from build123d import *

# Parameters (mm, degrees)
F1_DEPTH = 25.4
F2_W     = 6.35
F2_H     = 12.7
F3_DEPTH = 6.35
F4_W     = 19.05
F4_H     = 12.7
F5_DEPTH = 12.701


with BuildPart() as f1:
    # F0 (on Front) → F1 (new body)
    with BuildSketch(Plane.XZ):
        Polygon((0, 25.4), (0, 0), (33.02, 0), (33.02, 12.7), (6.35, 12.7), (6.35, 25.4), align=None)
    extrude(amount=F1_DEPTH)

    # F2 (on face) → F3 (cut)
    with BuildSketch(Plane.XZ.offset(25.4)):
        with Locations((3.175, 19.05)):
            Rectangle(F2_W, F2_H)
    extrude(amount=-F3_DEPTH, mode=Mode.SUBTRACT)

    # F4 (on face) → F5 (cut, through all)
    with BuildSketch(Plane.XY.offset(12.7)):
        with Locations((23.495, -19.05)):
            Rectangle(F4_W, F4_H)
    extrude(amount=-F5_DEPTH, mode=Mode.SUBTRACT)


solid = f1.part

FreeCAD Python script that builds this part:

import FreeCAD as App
import Part
import Sketcher
from FreeCAD import Vector
Q = App.Units.Quantity

doc = App.newDocument("Part")
body = doc.addObject("PartDesign::Body", "Body")

sketch1 = doc.addObject("Sketcher::SketchObject", "Sketch")
body.addObject(sketch1)
sketch1.AttachmentSupport = (doc.XZ_Plane, [""])
sketch1.MapMode = "FlatFace"
sketch1.addGeometry([
    Part.LineSegment(Vector(0, 25, 0), Vector(0, 0, 0)),
    Part.LineSegment(Vector(0, 0, 0), Vector(33, 0, 0)),
    Part.LineSegment(Vector(33, 0, 0), Vector(33, 13, 0)),
    Part.LineSegment(Vector(33, 13, 0), Vector(6, 13, 0)),
    Part.LineSegment(Vector(6, 13, 0), Vector(6, 25, 0)),
    Part.LineSegment(Vector(6, 25, 0), Vector(0, 25, 0)),
], False)
sketch1.addConstraint([
    Sketcher.Constraint("Coincident", 0, 2, 1, 1),
    Sketcher.Constraint("Coincident", 1, 2, 2, 1),
    Sketcher.Constraint("Coincident", 2, 2, 3, 1),
    Sketcher.Constraint("Coincident", 3, 2, 4, 1),
    Sketcher.Constraint("Coincident", 4, 2, 5, 1),
    Sketcher.Constraint("Coincident", 5, 2, 0, 1),
    Sketcher.Constraint("Vertical", 0),
    Sketcher.Constraint("Horizontal", 1),
    Sketcher.Constraint("Vertical", 2),
    Sketcher.Constraint("Horizontal", 3),
    Sketcher.Constraint("Vertical", 4),
    Sketcher.Constraint("Horizontal", 5),
    Sketcher.Constraint("Coincident", 0, 2, -1, 1),
    Sketcher.Constraint("Equal", 2, 4),
    Sketcher.Constraint("DistanceY", 0, 2, 0, 1, Q("1 in")),
    Sketcher.Constraint("DistanceX", 1, 1, 1, 2, Q("1.3 in")),
    Sketcher.Constraint("DistanceX", 3, 2, 3, 1, Q("1.05 in")),
])
pad1 = doc.addObject("PartDesign::Pad", "Pad")
body.addObject(pad1)
pad1.Profile = sketch1
pad1.Length = Q("1 in")

sketch2 = doc.addObject("Sketcher::SketchObject", "Sketch001")
body.addObject(sketch2)
sketch2.AttachmentSupport = (doc.XZ_Plane, [""])
sketch2.MapMode = "FlatFace"
sketch2.AttachmentOffset = App.Placement(Vector(0, 0, 1 * 25.4), App.Rotation())
sketch2.addGeometry([
    Part.LineSegment(Vector(0, 25, 0), Vector(0, 13, 0)),
    Part.LineSegment(Vector(0, 13, 0), Vector(6, 13, 0)),
    Part.LineSegment(Vector(6, 13, 0), Vector(6, 25, 0)),
    Part.LineSegment(Vector(6, 25, 0), Vector(0, 25, 0)),
], False)
sketch2.addConstraint([
    Sketcher.Constraint("Coincident", 0, 2, 1, 1),
    Sketcher.Constraint("Coincident", 1, 2, 2, 1),
    Sketcher.Constraint("Coincident", 2, 2, 3, 1),
    Sketcher.Constraint("Coincident", 3, 2, 0, 1),
    Sketcher.Constraint("Vertical", 0),
    Sketcher.Constraint("Horizontal", 1),
    Sketcher.Constraint("Vertical", 2),
    Sketcher.Constraint("Horizontal", 3),
    Sketcher.Constraint("PointOnObject", 0, 2, -2),
    Sketcher.Constraint("DistanceY", 0, 2, 0, 1, Q("0.5 in")),
    Sketcher.Constraint("DistanceY", -1, 1, 2, 2, Q("1 in")),
    Sketcher.Constraint("DistanceX", 1, 1, 1, 2, Q("0.25 in")),
])
pocket1 = doc.addObject("PartDesign::Pocket", "Pocket")
body.addObject(pocket1)
pocket1.Profile = sketch2
pocket1.Length = Q("0.25 in")

sketch3 = doc.addObject("Sketcher::SketchObject", "Sketch002")
body.addObject(sketch3)
sketch3.AttachmentSupport = (doc.XY_Plane, [""])
sketch3.MapMode = "FlatFace"
sketch3.AttachmentOffset = App.Placement(Vector(0, 0, 0.5 * 25.4), App.Rotation())
sketch3.addGeometry([
    Part.LineSegment(Vector(14, -13, 0), Vector(14, -25, 0)),
    Part.LineSegment(Vector(14, -25, 0), Vector(33, -25, 0)),
    Part.LineSegment(Vector(33, -25, 0), Vector(33, -13, 0)),
    Part.LineSegment(Vector(33, -13, 0), Vector(14, -13, 0)),
], False)
sketch3.addConstraint([
    Sketcher.Constraint("Coincident", 0, 2, 1, 1),
    Sketcher.Constraint("Coincident", 1, 2, 2, 1),
    Sketcher.Constraint("Coincident", 2, 2, 3, 1),
    Sketcher.Constraint("Coincident", 3, 2, 0, 1),
    Sketcher.Constraint("Vertical", 0),
    Sketcher.Constraint("Horizontal", 1),
    Sketcher.Constraint("Vertical", 2),
    Sketcher.Constraint("Horizontal", 3),
    Sketcher.Constraint("DistanceY", 0, 2, 0, 1, Q("0.5 in")),
    Sketcher.Constraint("DistanceY", 0, 2, -1, 1, Q("1 in")),
    Sketcher.Constraint("DistanceX", 1, 1, 1, 2, Q("0.75 in")),
    Sketcher.Constraint("DistanceX", -1, 1, 1, 2, Q("1.3 in")),
])
pocket2 = doc.addObject("PartDesign::Pocket", "Pocket001")
body.addObject(pocket2)
pocket2.Profile = sketch3
pocket2.Type = "ThroughAll"

doc.recompute()
